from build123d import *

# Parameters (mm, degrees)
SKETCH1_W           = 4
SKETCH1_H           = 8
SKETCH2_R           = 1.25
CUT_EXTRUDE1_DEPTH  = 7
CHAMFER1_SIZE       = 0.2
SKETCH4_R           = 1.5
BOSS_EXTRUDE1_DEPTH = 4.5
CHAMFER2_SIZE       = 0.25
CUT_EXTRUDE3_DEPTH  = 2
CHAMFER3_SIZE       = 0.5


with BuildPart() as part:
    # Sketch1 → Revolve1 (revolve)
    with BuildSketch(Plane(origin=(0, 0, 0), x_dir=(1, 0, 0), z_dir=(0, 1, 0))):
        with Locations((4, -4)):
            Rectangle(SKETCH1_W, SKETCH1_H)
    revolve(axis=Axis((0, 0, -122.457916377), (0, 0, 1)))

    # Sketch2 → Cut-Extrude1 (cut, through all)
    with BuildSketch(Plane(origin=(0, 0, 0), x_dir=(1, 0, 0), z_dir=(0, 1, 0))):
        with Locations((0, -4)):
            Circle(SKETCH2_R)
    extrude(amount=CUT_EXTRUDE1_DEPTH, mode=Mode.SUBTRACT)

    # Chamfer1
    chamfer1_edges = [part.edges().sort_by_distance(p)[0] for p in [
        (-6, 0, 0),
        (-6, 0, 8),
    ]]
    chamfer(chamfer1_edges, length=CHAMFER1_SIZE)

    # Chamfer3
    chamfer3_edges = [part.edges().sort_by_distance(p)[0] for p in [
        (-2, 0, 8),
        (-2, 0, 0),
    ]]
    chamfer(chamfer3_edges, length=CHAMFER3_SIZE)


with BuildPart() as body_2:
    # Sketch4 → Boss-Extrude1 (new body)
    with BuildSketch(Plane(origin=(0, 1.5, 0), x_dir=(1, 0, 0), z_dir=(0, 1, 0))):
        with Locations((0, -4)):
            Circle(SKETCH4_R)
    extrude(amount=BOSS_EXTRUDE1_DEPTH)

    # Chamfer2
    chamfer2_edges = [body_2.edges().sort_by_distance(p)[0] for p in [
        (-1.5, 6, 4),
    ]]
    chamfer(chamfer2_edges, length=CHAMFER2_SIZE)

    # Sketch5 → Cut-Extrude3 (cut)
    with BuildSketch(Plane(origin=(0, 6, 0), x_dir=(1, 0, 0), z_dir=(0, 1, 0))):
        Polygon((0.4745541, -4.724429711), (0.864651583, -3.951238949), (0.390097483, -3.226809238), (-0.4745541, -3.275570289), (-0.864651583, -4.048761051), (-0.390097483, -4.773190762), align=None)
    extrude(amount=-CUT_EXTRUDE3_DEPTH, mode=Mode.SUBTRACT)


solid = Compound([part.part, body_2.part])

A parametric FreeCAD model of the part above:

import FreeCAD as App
import Part
import Sketcher

V = App.Vector


def edges_at(feature, points):
    """Names of the edges that pass closest to the given points."""
    edges = feature.Shape.Edges
    near = lambda p: min(range(len(edges)), key=lambda i: edges[i].distToShape(Part.Vertex(*p))[0])
    return sorted({f"Edge{near(p) + 1}" for p in points})

doc = App.newDocument("Part")
body = doc.addObject("PartDesign::Body", "Body")

sketch1 = body.newObject("Sketcher::SketchObject", "Sketch")
sketch1.AttachmentSupport = (doc.getObject("XZ_Plane"), [""])
sketch1.MapMode = "FlatFace"
sketch1.addGeometry([
    Part.LineSegment(V(2, 0, 0), V(2, 8, 0)),
    Part.LineSegment(V(2, 8, 0), V(6, 8, 0)),
    Part.LineSegment(V(6, 8, 0), V(6, 0, 0)),
    Part.LineSegment(V(6, 0, 0), V(2, 0, 0)),
], False)
sketch1.addConstraint([
    Sketcher.Constraint("Coincident", 0, 2, 1, 1),
    Sketcher.Constraint("Coincident", 1, 2, 2, 1),
    Sketcher.Constraint("Coincident", 2, 2, 3, 1),
    Sketcher.Constraint("Coincident", 3, 2, 0, 1),
    Sketcher.Constraint("Vertical", 0),
    Sketcher.Constraint("Horizontal", 1),
    Sketcher.Constraint("Vertical", 2),
    Sketcher.Constraint("Horizontal", 3),
    Sketcher.Constraint("PointOnObject", 2, 2, -1),
    Sketcher.Constraint("DistanceX", 1, 1, 1, 2, 4.0),
    Sketcher.Constraint("DistanceY", 0, 1, 0, 2, 8.0),
    Sketcher.Constraint("DistanceX", -1, 1, 0, 2, 2.0),
])
revolution = body.newObject("PartDesign::Revolution", "Revolution")
revolution.Profile = sketch1
revolution.ReferenceAxis = (sketch1, ["V_Axis"])
revolution.Angle = 360

sketch2 = body.newObject("Sketcher::SketchObject", "Sketch001")
sketch2.AttachmentSupport = (doc.getObject("XZ_Plane"), [""])
sketch2.MapMode = "FlatFace"
sketch2.addGeometry(Part.Circle(V(0, 4, 0), V(0, 0, 1), 1.2), False)
sketch2.addConstraint([
    Sketcher.Constraint("PointOnObject", 0, 3, -2),
    Sketcher.Constraint("Diameter", 0, 2.5),
    Sketcher.Constraint("DistanceY", -1, 1, 0, 3, 4.0),
])
pocket1 = body.newObject("PartDesign::Pocket", "Pocket")
pocket1.Profile = sketch2
pocket1.Type = "ThroughAll"
doc.recompute()

chamfer = body.newObject("PartDesign::Chamfer", "Chamfer")
chamfer.Base = (pocket1, edges_at(pocket1, [(-6, 0, 0), (-6, 0, 8)]))
chamfer.Size = 0.2
doc.recompute()

chamfer2 = body.newObject("PartDesign::Chamfer", "Chamfer001")
chamfer2.Base = (chamfer, edges_at(chamfer, [(-2, 0, 8), (-2, 0, 0)]))
chamfer2.Size = 0.5
body2 = doc.addObject("PartDesign::Body", "Body001")

sketch3 = body2.newObject("Sketcher::SketchObject", "Sketch002")
sketch3.AttachmentSupport = (doc.getObject("XZ_Plane001"), [""])
sketch3.MapMode = "FlatFace"
sketch3.AttachmentOffset = App.Placement(V(0, 0, -1.5), App.Rotation())
sketch3.addGeometry(Part.Circle(V(0, 4, 0), V(0, 0, 1), 1.5), False)
sketch3.addConstraint([
    Sketcher.Constraint("PointOnObject", 0, 3, -2),
    Sketcher.Constraint("Diameter", 0, 3.0),
    Sketcher.Constraint("DistanceY", -1, 1, 0, 3, 4.0),
])
pad1 = body2.newObject("PartDesign::Pad", "Pad")
pad1.Profile = sketch3
pad1.Length = 4.5
pad1.Reversed = True
doc.recompute()

chamfer3 = body2.newObject("PartDesign::Chamfer", "Chamfer002")
chamfer3.Base = (pad1, edges_at(pad1, [(-1.5, 6, 4)]))
chamfer3.Size = 0.25

sketch4 = body2.newObject("Sketcher::SketchObject", "Sketch003")
sketch4.AttachmentSupport = (doc.getObject("XZ_Plane001"), [""])
sketch4.MapMode = "FlatFace"
sketch4.AttachmentOffset = App.Placement(V(0, 0, -6), App.Rotation())
sketch4.addGeometry([
    Part.LineSegment(V(0.5, 4.7, 0), V(0.9, 4, 0)),
    Part.LineSegment(V(0.9, 4, 0), V(0.4, 3.2, 0)),
    Part.LineSegment(V(0.4, 3.2, 0), V(-0.5, 3.3, 0)),
    Part.LineSegment(V(-0.5, 3.3, 0), V(-0.9, 4, 0)),
    Part.LineSegment(V(-0.9, 4, 0), V(-0.4, 4.8, 0)),
    Part.LineSegment(V(-0.4, 4.8, 0), V(0.5, 4.7, 0)),
], False)
sketch4.addConstraint([
    Sketcher.Constraint("Coincident", 0, 2, 1, 1),
    Sketcher.Constraint("Coincident", 1, 2, 2, 1),
    Sketcher.Constraint("Coincident", 2, 2, 3, 1),
    Sketcher.Constraint("Coincident", 3, 2, 4, 1),
    Sketcher.Constraint("Coincident", 4, 2, 5, 1),
    Sketcher.Constraint("Coincident", 5, 2, 0, 1),
    Sketcher.Constraint("Parallel", 0, 3),
    Sketcher.Constraint("Parallel", 1, 4),
    Sketcher.Constraint("Parallel", 2, 5),
    Sketcher.Constraint("Equal", 0, 1),
    Sketcher.Constraint("Equal", 1, 2),
    Sketcher.Constraint("Equal", 2, 3),
    Sketcher.Constraint("DistanceX", -1, 1, 0, 2, 0.864652),
    Sketcher.Constraint("DistanceY", -1, 1, 0, 2, 3.951239),
    Sketcher.Constraint("DistanceY", -1, 1, 1, 2, 3.226809),
    Sketcher.Constraint("DistanceY", -1, 1, 2, 2, 3.27557),
    Sketcher.Constraint("DistanceX", 3, 2, -1, 1, 0.864652),
    Sketcher.Constraint("DistanceY", -1, 1, 3, 2, 4.048761),
])
pocket2 = body2.newObject("PartDesign::Pocket", "Pocket001")
pocket2.Profile = sketch4
pocket2.Length = 2
pocket2.Reversed = True

doc.recompute()
